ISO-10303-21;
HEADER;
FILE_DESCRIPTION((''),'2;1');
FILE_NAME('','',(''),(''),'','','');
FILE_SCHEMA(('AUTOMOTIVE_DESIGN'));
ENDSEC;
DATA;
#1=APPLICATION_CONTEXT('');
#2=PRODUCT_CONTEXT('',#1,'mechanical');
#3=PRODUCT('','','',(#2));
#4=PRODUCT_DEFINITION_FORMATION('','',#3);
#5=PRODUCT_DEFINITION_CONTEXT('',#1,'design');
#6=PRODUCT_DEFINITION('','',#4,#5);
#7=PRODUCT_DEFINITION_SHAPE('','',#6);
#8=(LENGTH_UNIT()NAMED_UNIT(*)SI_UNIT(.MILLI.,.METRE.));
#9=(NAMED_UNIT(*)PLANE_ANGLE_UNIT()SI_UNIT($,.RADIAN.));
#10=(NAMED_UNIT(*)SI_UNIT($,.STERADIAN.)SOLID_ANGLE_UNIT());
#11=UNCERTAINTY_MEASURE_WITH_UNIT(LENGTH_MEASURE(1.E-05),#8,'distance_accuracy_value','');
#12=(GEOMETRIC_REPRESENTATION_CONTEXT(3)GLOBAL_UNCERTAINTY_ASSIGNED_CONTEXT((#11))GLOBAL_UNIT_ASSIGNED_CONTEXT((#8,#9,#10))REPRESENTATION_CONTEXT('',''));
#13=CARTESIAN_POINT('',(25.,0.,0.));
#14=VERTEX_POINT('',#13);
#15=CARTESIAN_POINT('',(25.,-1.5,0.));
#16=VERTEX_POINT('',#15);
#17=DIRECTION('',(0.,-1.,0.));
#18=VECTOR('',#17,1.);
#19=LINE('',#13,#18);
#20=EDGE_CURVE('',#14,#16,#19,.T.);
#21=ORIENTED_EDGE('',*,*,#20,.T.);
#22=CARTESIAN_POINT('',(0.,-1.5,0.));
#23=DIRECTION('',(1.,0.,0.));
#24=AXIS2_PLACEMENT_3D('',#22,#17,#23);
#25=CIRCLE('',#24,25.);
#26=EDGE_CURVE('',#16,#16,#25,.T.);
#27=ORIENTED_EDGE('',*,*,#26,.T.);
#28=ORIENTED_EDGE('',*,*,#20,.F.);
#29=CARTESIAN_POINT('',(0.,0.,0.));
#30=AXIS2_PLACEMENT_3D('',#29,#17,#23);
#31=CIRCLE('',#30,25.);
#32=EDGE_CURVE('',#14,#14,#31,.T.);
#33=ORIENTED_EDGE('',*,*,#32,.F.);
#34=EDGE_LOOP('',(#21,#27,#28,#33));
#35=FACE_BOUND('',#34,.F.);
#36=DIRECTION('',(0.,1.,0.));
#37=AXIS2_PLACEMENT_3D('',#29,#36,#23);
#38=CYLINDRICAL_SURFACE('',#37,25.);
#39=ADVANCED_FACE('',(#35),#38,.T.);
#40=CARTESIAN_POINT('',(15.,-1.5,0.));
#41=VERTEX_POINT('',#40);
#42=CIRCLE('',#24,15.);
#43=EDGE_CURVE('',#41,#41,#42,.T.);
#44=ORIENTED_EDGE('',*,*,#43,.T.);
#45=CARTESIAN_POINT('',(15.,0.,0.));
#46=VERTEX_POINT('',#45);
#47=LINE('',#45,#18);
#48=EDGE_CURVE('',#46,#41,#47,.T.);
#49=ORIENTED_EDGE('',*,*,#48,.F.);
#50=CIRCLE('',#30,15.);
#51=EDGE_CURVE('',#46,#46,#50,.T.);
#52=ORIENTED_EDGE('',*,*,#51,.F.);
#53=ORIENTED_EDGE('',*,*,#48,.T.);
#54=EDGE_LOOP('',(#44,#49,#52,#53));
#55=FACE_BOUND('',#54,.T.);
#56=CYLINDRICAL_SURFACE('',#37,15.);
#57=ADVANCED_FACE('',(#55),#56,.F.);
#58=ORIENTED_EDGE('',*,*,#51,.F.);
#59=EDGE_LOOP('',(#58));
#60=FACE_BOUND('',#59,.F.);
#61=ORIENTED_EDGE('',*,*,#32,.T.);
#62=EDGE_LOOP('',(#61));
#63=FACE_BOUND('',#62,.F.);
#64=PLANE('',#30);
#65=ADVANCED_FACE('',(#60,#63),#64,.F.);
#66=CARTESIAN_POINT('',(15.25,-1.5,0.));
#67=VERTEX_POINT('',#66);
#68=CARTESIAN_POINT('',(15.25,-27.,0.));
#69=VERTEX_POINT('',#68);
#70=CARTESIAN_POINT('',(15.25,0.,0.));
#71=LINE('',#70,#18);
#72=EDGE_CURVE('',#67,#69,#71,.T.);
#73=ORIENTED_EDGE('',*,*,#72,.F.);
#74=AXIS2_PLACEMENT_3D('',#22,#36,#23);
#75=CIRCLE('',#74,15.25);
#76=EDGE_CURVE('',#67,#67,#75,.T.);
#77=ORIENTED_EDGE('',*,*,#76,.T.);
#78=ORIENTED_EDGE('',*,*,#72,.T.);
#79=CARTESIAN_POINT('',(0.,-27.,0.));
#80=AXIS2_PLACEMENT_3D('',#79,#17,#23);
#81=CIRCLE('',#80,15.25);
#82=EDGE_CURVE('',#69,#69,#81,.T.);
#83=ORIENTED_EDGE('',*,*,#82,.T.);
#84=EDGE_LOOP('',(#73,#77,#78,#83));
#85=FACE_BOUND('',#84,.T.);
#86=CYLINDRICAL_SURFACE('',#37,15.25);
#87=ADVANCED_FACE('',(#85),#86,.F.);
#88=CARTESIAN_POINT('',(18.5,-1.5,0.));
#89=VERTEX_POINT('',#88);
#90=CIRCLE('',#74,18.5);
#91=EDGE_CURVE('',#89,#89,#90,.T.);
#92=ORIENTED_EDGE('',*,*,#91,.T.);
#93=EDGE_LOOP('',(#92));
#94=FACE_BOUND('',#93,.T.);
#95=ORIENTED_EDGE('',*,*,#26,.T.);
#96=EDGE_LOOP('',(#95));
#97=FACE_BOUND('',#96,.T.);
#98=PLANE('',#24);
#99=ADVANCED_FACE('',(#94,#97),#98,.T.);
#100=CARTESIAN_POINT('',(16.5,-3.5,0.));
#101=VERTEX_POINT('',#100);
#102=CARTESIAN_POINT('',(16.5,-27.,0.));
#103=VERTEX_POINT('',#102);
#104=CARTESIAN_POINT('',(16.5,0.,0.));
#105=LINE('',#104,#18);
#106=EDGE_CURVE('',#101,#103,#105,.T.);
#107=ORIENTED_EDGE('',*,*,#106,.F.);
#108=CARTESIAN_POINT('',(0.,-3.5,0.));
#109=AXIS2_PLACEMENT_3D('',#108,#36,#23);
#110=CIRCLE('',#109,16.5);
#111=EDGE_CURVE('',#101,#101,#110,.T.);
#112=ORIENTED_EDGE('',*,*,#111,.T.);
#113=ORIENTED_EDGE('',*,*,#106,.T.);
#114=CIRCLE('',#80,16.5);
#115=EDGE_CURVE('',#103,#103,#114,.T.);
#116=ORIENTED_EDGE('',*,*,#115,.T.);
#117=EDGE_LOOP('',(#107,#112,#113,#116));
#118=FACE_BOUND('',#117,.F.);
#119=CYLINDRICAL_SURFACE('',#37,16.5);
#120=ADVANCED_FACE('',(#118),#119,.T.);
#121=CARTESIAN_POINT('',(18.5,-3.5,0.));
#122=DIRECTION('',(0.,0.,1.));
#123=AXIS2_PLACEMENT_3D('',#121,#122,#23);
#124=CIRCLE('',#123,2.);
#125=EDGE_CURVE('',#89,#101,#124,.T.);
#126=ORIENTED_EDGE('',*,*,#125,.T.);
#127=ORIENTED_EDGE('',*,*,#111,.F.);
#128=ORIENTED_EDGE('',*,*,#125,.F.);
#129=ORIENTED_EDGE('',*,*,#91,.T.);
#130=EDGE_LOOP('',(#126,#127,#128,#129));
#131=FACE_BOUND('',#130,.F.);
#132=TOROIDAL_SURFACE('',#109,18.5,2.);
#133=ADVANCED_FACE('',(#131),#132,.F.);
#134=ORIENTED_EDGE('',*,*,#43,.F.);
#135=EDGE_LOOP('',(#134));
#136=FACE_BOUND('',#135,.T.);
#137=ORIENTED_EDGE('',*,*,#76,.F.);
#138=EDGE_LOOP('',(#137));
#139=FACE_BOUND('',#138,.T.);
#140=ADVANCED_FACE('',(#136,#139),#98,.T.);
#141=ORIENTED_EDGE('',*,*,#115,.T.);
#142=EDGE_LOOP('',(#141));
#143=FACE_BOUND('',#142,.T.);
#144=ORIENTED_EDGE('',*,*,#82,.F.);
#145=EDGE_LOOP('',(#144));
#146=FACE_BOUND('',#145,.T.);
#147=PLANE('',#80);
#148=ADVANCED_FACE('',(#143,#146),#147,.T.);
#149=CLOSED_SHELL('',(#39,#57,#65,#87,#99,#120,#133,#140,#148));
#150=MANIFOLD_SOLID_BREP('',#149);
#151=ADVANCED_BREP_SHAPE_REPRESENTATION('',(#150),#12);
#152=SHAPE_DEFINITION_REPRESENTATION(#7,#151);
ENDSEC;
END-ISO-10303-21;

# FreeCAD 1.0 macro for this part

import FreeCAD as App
import Part
import Sketcher

V = App.Vector
Q = App.Units.Quantity


def edges_at(feature, points):
    """Names of the edges that pass closest to the given points."""
    edges = feature.Shape.Edges
    near = lambda p: min(range(len(edges)), key=lambda i: edges[i].distToShape(Part.Vertex(*p))[0])
    return sorted({f"Edge{near(p) + 1}" for p in points})

doc = App.newDocument("Part")
body = doc.addObject("PartDesign::Body", "Body")

# Sketch on XZ plane
sketch1 = body.newObject("Sketcher::SketchObject", "Sketch")
sketch1.AttachmentSupport = (doc.getObject("XZ_Plane"), [""])
sketch1.MapMode = "FlatFace"
sketch1.addGeometry([
    Part.Circle(V(0, 0, 0), V(0, 0, 1), 25),
    Part.Circle(V(0, 0, 0), V(0, 0, 1), 15),
], False)
sketch1.addConstraint([
    Sketcher.Constraint("Coincident", 0, 3, -1, 1),
    Sketcher.Constraint("Coincident", 1, 3, -1, 1),
    Sketcher.Constraint("Diameter", 0, Q("50 mm")),
    Sketcher.Constraint("Diameter", 1, Q("30 mm")),
])
pad1 = body.newObject("PartDesign::Pad", "Pad")
pad1.Profile = sketch1
pad1.Length = 1.5

# Sketch on XZ plane
sketch2 = body.newObject("Sketcher::SketchObject", "Sketch001")
sketch2.AttachmentSupport = (doc.getObject("XZ_Plane"), [""])
sketch2.MapMode = "FlatFace"
sketch2.addGeometry([
    Part.Circle(V(0, 0, 0), V(0, 0, 1), 16),
    Part.Circle(V(0, 0, 0), V(0, 0, 1), 15),
], False)
sketch2.addConstraint([
    Sketcher.Constraint("Coincident", 0, 3, -1, 1),
    Sketcher.Constraint("Coincident", 1, 3, -1, 1),
    Sketcher.Constraint("Diameter", 0, Q("33 mm")),
    Sketcher.Constraint("Diameter", 1, Q("30.5 mm")),
])
pad2 = body.newObject("PartDesign::Pad", "Pad001")
pad2.Profile = sketch2
pad2.Length = 27
doc.recompute()

fillet = body.newObject("PartDesign::Fillet", "Fillet")
fillet.Base = (pad2, edges_at(pad2, [(-16.5, -1.5, 0)]))
fillet.Radius = 2

doc.recompute()
